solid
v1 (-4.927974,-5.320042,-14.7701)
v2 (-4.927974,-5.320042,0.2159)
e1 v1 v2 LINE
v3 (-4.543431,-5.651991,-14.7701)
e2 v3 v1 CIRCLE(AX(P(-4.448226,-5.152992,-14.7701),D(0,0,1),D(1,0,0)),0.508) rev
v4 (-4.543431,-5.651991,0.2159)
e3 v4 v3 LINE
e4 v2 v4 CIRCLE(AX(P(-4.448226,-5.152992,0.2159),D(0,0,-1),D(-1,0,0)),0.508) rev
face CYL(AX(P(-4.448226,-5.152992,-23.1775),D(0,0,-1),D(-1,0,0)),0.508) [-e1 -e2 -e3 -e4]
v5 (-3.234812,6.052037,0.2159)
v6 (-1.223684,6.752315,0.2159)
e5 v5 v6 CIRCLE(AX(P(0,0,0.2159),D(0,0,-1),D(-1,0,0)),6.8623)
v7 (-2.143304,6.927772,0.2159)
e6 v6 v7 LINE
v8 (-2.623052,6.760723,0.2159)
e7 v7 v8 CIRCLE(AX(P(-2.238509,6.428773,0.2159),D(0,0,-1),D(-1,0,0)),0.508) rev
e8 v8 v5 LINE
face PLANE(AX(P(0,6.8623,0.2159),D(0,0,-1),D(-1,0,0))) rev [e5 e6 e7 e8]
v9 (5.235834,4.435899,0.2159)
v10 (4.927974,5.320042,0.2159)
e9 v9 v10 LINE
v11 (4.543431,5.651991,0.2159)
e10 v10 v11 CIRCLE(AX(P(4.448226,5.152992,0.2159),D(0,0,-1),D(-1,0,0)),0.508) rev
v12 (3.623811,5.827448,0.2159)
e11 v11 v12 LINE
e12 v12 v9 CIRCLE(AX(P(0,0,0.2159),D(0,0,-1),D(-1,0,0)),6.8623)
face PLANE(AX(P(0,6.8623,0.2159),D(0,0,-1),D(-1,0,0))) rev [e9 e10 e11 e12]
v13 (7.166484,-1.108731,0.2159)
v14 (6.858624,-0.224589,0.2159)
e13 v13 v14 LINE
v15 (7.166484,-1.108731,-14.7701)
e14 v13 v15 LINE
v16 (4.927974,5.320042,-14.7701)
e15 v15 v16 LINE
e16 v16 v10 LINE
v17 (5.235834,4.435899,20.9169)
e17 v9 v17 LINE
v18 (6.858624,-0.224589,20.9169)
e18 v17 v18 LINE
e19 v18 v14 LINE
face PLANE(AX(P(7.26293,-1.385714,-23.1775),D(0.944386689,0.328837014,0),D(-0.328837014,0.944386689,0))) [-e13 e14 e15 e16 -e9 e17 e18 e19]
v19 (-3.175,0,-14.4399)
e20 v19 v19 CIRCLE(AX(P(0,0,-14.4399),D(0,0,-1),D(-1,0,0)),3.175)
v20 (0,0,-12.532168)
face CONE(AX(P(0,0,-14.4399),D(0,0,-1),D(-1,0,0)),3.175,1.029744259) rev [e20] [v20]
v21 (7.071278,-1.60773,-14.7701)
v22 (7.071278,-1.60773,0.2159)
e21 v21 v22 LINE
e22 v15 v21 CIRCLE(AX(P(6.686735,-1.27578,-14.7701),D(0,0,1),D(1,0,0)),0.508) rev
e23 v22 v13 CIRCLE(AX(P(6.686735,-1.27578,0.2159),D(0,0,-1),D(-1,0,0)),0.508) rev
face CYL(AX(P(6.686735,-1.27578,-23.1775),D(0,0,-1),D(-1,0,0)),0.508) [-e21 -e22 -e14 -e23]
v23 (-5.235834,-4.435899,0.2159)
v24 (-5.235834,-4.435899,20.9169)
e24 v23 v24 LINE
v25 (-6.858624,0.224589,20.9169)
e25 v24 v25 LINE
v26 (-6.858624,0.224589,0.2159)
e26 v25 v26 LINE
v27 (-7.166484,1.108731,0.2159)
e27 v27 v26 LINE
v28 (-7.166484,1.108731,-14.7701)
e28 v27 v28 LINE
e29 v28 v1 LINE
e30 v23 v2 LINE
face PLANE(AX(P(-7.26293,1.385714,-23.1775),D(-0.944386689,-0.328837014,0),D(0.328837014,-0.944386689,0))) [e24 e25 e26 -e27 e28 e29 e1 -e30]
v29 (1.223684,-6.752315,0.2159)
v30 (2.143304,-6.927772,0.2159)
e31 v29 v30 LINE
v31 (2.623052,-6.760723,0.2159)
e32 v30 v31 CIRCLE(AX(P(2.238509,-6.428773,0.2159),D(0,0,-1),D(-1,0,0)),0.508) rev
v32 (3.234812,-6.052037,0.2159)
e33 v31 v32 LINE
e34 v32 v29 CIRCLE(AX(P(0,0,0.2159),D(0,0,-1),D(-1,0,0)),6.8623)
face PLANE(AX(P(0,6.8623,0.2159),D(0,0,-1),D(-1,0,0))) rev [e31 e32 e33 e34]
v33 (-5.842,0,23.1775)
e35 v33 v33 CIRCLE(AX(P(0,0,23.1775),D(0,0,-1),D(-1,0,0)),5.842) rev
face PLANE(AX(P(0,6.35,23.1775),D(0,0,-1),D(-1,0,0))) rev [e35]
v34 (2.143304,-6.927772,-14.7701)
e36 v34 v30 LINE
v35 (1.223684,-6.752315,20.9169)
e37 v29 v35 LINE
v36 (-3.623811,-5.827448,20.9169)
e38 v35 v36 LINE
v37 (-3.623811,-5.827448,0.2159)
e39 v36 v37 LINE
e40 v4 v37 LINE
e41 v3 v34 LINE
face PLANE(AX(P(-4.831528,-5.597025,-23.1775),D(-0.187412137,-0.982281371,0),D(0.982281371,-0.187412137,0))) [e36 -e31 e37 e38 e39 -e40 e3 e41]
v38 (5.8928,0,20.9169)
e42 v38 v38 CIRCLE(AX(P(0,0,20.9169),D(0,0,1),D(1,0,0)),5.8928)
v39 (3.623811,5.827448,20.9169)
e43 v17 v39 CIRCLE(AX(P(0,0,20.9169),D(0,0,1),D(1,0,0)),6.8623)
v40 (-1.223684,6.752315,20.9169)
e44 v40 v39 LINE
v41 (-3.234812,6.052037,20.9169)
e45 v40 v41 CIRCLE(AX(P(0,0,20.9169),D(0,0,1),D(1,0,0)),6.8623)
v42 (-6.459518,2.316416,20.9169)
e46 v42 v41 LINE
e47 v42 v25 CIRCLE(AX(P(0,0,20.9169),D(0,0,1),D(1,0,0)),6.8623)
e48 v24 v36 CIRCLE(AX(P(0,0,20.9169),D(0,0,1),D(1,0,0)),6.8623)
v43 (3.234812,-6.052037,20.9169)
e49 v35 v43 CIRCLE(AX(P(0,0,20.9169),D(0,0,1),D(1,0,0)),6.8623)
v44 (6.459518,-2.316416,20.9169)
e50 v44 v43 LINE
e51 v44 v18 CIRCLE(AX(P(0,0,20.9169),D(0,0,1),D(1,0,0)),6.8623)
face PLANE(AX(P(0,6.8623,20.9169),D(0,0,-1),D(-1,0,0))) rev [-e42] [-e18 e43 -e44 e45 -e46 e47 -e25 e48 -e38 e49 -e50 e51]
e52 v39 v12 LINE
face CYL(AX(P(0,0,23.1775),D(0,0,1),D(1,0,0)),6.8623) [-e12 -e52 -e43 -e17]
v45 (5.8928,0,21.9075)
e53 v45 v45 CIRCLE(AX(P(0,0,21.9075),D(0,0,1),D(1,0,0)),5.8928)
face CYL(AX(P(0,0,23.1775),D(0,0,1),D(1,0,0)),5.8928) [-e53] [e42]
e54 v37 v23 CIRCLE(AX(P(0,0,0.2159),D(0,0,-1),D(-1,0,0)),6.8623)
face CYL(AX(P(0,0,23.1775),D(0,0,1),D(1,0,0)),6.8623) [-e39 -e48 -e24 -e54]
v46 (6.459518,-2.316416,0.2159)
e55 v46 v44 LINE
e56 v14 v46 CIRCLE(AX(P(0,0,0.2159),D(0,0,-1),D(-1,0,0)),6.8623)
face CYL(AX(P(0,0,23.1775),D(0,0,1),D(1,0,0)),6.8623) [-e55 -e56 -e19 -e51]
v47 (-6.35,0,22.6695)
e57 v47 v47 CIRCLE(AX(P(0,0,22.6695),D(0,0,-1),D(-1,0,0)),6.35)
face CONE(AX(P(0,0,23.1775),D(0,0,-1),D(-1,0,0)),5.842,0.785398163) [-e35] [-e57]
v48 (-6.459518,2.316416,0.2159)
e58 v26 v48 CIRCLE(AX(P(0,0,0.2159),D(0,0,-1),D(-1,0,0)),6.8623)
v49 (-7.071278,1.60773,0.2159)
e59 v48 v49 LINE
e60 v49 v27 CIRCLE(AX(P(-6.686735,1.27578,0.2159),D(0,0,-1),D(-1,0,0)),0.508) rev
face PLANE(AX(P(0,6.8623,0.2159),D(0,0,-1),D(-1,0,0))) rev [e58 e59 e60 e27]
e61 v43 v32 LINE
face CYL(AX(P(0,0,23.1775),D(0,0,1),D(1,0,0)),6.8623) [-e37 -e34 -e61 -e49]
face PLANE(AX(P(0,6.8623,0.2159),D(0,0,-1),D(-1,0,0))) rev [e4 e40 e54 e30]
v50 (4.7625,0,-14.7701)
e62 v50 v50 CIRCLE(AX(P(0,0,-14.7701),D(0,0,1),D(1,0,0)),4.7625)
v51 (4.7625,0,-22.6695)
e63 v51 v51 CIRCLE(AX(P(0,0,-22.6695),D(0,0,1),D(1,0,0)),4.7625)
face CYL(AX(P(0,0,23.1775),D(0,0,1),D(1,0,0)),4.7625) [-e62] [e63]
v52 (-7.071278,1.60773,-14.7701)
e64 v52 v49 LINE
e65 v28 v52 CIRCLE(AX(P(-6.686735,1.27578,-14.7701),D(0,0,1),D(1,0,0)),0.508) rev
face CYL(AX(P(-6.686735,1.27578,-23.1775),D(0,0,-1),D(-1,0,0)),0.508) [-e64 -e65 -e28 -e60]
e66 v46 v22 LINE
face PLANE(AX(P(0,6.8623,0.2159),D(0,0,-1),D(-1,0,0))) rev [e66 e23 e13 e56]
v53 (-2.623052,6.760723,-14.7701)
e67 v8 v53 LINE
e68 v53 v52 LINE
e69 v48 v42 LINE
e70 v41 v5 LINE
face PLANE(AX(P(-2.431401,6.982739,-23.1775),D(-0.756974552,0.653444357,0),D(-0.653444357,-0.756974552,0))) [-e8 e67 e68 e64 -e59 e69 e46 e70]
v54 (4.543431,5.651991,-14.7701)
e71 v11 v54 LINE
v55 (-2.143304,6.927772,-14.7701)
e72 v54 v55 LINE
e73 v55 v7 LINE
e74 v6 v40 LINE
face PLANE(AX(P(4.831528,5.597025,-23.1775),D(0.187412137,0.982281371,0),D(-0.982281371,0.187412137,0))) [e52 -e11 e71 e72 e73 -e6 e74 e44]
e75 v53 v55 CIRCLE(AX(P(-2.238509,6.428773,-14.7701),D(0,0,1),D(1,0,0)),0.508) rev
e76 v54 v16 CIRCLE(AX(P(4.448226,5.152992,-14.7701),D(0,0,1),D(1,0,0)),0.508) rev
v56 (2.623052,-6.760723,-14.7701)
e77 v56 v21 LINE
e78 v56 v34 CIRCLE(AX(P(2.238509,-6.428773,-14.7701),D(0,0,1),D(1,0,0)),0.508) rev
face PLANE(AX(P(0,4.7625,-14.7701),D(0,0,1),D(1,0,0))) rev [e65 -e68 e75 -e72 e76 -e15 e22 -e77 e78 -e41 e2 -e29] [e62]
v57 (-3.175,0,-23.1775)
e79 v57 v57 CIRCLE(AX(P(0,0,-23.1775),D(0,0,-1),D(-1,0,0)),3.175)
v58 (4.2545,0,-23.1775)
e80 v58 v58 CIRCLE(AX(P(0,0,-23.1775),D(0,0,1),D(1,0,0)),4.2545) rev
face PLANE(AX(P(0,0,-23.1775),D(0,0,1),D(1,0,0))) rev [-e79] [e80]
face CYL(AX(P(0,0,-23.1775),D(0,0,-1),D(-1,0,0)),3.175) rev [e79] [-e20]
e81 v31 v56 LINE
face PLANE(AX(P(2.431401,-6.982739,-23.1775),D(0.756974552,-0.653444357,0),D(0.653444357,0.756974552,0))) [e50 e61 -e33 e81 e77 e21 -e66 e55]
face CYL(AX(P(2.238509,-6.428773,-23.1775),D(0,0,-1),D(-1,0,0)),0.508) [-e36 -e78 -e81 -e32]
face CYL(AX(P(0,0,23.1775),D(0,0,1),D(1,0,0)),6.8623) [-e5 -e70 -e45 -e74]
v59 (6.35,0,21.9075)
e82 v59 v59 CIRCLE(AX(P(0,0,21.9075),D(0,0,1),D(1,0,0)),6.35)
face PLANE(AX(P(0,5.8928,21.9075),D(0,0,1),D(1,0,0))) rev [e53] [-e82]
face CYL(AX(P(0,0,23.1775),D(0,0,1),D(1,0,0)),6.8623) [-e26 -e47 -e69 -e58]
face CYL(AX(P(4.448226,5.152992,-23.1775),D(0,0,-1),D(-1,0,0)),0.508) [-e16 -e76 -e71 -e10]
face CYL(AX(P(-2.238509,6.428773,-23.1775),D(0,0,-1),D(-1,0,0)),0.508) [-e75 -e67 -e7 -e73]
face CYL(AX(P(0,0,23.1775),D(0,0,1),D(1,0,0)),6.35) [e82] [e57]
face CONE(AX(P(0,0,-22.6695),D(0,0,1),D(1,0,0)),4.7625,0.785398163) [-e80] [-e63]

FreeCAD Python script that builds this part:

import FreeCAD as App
import Part
import Sketcher
from FreeCAD import Vector
Q = App.Units.Quantity


def edges_at(feature, points):
    """Names of the edges that pass closest to the given points."""
    edges = feature.Shape.Edges
    near = lambda p: min(range(len(edges)), key=lambda i: edges[i].distToShape(Part.Vertex(*p))[0])
    return sorted({f"Edge{near(p) + 1}" for p in points})

doc = App.newDocument("Part")
params = doc.addObject("Spreadsheet::Sheet", "Params")
for row, (alias, value) in enumerate([
    ("sketch1_width", "0.25 in"),
    ("sketch1_height", "0.05 in"),
    ("sketch1_width2", "0.1875 in"),
    ("sketch1_width3", "0.018 in"),
    ("sketch1_height2", "1.825 in"),
    ("revolution_angle", "360 deg"),
    ("sketch3_diameter", "0.25 in"),
    ("hole_diameter", "0.25 in"),
    ("hole_depth", "0.344 in"),
    ("chamfer_size", "0.02 in"),
    ("sketch4_diameter", "0.25 in"),
    ("pad1_length", "0.59 in"),
    ("fillet_radius", "0.02 in"),
], start=1):
    params.set(f"A{row}", alias)
    params.set(f"B{row}", "=" + value)
    params.setAlias(f"B{row}", alias)

body = doc.addObject("PartDesign::Body", "Body")

# Sketch on YZ plane
sketch1 = body.newObject("Sketcher::SketchObject", "Sketch")
sketch1.AttachmentSupport = (doc.getObject("YZ_Plane"), [""])
sketch1.MapMode = "FlatFace"
sketch1.addGeometry(Part.LineSegment(Vector(0, 23.1775, 0), Vector(0, -23.1775, 0)), False)
sketch1.addGeometry(Part.LineSegment(Vector(0, -23.1775, 0), Vector(4.7625, -23.1775, 0)), False)
sketch1.addGeometry(Part.LineSegment(Vector(4.7625, -23.1775, 0), Vector(4.7625, -14.7701, 0)), False)
sketch1.addGeometry(Part.LineSegment(Vector(4.7625, -14.7701, 0), Vector(6.8623, -14.7701, 0)), False)
sketch1.addGeometry(Part.LineSegment(Vector(6.8623, -14.7701, 0), Vector(6.8623, 20.9169, 0)), False)
sketch1.addGeometry(Part.LineSegment(Vector(6.8623, 20.9169, 0), Vector(5.8928, 20.9169, 0)), False)
sketch1.addGeometry(Part.LineSegment(Vector(5.8928, 20.9169, 0), Vector(5.8928, 21.9075, 0)), False)
sketch1.addGeometry(Part.LineSegment(Vector(5.8928, 21.9075, 0), Vector(6.35, 21.9075, 0)), False)
sketch1.addGeometry(Part.LineSegment(Vector(6.35, 21.9075, 0), Vector(6.35, 23.1775, 0)), False)
sketch1.addGeometry(Part.LineSegment(Vector(6.35, 23.1775, 0), Vector(0, 23.1775, 0)), False)
sketch1.addConstraint(Sketcher.Constraint("Coincident", 0, 2, 1, 1))
sketch1.addConstraint(Sketcher.Constraint("Coincident", 1, 2, 2, 1))
sketch1.addConstraint(Sketcher.Constraint("Coincident", 2, 2, 3, 1))
sketch1.addConstraint(Sketcher.Constraint("Coincident", 3, 2, 4, 1))
sketch1.addConstraint(Sketcher.Constraint("Coincident", 4, 2, 5, 1))
sketch1.addConstraint(Sketcher.Constraint("Coincident", 5, 2, 6, 1))
sketch1.addConstraint(Sketcher.Constraint("Coincident", 6, 2, 7, 1))
sketch1.addConstraint(Sketcher.Constraint("Coincident", 7, 2, 8, 1))
sketch1.addConstraint(Sketcher.Constraint("Coincident", 8, 2, 9, 1))
sketch1.addConstraint(Sketcher.Constraint("Coincident", 9, 2, 0, 1))
sketch1.addConstraint(Sketcher.Constraint("Vertical", 0))
sketch1.addConstraint(Sketcher.Constraint("Horizontal", 1))
sketch1.addConstraint(Sketcher.Constraint("Vertical", 2))
sketch1.addConstraint(Sketcher.Constraint("Horizontal", 3))
sketch1.addConstraint(Sketcher.Constraint("Vertical", 4))
sketch1.addConstraint(Sketcher.Constraint("Horizontal", 5))
sketch1.addConstraint(Sketcher.Constraint("Vertical", 6))
sketch1.addConstraint(Sketcher.Constraint("Horizontal", 7))
sketch1.addConstraint(Sketcher.Constraint("Vertical", 8))
sketch1.addConstraint(Sketcher.Constraint("Horizontal", 9))
sketch1.addConstraint(Sketcher.Constraint("Symmetric", 0, 2, 9, 2, -1, 1))
sketch1.addConstraint(Sketcher.Constraint("DistanceX", 9, 2, 9, 1, Q("0.25 in")))
sketch1.addConstraint(Sketcher.Constraint("DistanceY", 8, 1, 8, 2, Q("0.05 in")))
sketch1.addConstraint(Sketcher.Constraint("DistanceX", 1, 1, 1, 2, Q("0.1875 in")))
sketch1.addConstraint(Sketcher.Constraint("DistanceX", 7, 1, 7, 2, Q("0.018 in")))
sketch1.addConstraint(Sketcher.Constraint("DistanceY", 0, 2, 0, 1, Q("1.825 in")))
sketch1.addConstraint(Sketcher.Constraint("DistanceY", 2, 1, 2, 2, Q("0.331 in")))
sketch1.addConstraint(Sketcher.Constraint("DistanceY", 4, 1, 4, 2, Q("1.405 in")))
sketch1.addConstraint(Sketcher.Constraint("DistanceX", 3, 1, 3, 2, Q("2.0998 mm")))
sketch1.setExpression("Constraints[21]", "Params.sketch1_width")
sketch1.setExpression("Constraints[22]", "Params.sketch1_height")
sketch1.setExpression("Constraints[23]", "Params.sketch1_width2")
sketch1.setExpression("Constraints[24]", "Params.sketch1_width3")
sketch1.setExpression("Constraints[25]", "Params.sketch1_height2")
revolution = body.newObject("PartDesign::Revolution", "Revolution")
revolution.Profile = sketch1
revolution.ReferenceAxis = (sketch1, ["V_Axis"])
revolution.setExpression("Angle", "Params.revolution_angle")

# Sketch on XY plane
sketch2 = body.newObject("Sketcher::SketchObject", "Sketch001")
sketch2.AttachmentSupport = (doc.getObject("XY_Plane"), [""])
sketch2.MapMode = "FlatFace"
sketch2.AttachmentOffset = App.Placement(Vector(0, 0, 0.9125 * 25.4), App.Rotation())
sketch2.addGeometry(Part.LineSegment(Vector(-12.887, 12.887, 0), Vector(-12.887, -12.887, 0)), False)
sketch2.addGeometry(Part.LineSegment(Vector(-12.887, -12.887, 0), Vector(12.887, -12.887, 0)), False)
sketch2.addGeometry(Part.LineSegment(Vector(12.887, -12.887, 0), Vector(12.887, 12.887, 0)), False)
sketch2.addGeometry(Part.LineSegment(Vector(12.887, 12.887, 0), Vector(-12.887, 12.887, 0)), False)
sketch2.addGeometry(Part.LineSegment(Vector(4.831528, 5.597025, 0), Vector(7.26293, -1.385714, 0)), False)
sketch2.addGeometry(Part.LineSegment(Vector(7.26293, -1.385714, 0), Vector(2.431401, -6.982739, 0)), False)
sketch2.addGeometry(Part.LineSegment(Vector(2.431401, -6.982739, 0), Vector(-4.831528, -5.597025, 0)), False)
sketch2.addGeometry(Part.LineSegment(Vector(-4.831528, -5.597025, 0), Vector(-7.26293, 1.385714, 0)), False)
sketch2.addGeometry(Part.LineSegment(Vector(-7.26293, 1.385714, 0), Vector(-2.431401, 6.982739, 0)), False)
sketch2.addGeometry(Part.LineSegment(Vector(-2.431401, 6.982739, 0), Vector(4.831528, 5.597025, 0)), False)
sketch2.addConstraint(Sketcher.Constraint("Coincident", 0, 2, 1, 1))
sketch2.addConstraint(Sketcher.Constraint("Coincident", 1, 2, 2, 1))
sketch2.addConstraint(Sketcher.Constraint("Coincident", 2, 2, 3, 1))
sketch2.addConstraint(Sketcher.Constraint("Coincident", 3, 2, 0, 1))
sketch2.addConstraint(Sketcher.Constraint("Coincident", 4, 2, 5, 1))
sketch2.addConstraint(Sketcher.Constraint("Coincident", 5, 2, 6, 1))
sketch2.addConstraint(Sketcher.Constraint("Coincident", 6, 2, 7, 1))
sketch2.addConstraint(Sketcher.Constraint("Coincident", 7, 2, 8, 1))
sketch2.addConstraint(Sketcher.Constraint("Coincident", 8, 2, 9, 1))
sketch2.addConstraint(Sketcher.Constraint("Coincident", 9, 2, 4, 1))
sketch2.addConstraint(Sketcher.Constraint("Vertical", 0))
sketch2.addConstraint(Sketcher.Constraint("Horizontal", 1))
sketch2.addConstraint(Sketcher.Constraint("Vertical", 2))
sketch2.addConstraint(Sketcher.Constraint("Horizontal", 3))
sketch2.addConstraint(Sketcher.Constraint("Symmetric", 0, 2, 2, 2, -1, 1))
sketch2.addConstraint(Sketcher.Constraint("Symmetric", 4, 2, 7, 2, -1, 1))
sketch2.addConstraint(Sketcher.Constraint("Symmetric", 5, 2, 8, 2, -1, 1))
sketch2.addConstraint(Sketcher.Constraint("Symmetric", 6, 2, 9, 2, -1, 1))
sketch2.addConstraint(Sketcher.Constraint("Equal", 3, 0))
sketch2.addConstraint(Sketcher.Constraint("Equal", 4, 5))
sketch2.addConstraint(Sketcher.Constraint("Equal", 5, 6))
sketch2.addConstraint(Sketcher.Constraint("Distance", 4, Q("0.2911 in")))
sketch2.addConstraint(Sketcher.Constraint("DistanceX", 1, 1, 1, 2, Q("25.774 mm")))
sketch2.addConstraint(Sketcher.Constraint("DistanceX", -1, 1, 5, 2, Q("2.431401 mm")))
sketch2.addConstraint(Sketcher.Constraint("DistanceX", 7, 2, 6, 2, Q("2.431401 mm")))
sketch2.addConstraint(Sketcher.Constraint("DistanceX", -1, 1, 4, 2, Q("7.26293 mm")))
pocket1 = body.newObject("PartDesign::Pocket", "Pocket")
pocket1.Profile = sketch2
pocket1.Type = "ThroughAll"

# Sketch on XY plane
sketch3 = body.newObject("Sketcher::SketchObject", "Sketch002")
sketch3.AttachmentSupport = (doc.getObject("XY_Plane"), [""])
sketch3.MapMode = "FlatFace"
sketch3.AttachmentOffset = App.Placement(Vector(0, 0, -0.9125 * 25.4), App.Rotation())
sketch3.addGeometry(Part.Circle(Vector(0, 0, 0), Vector(0, 0, 1), 3.175), False)
sketch3.addConstraint(Sketcher.Constraint("Coincident", 0, 3, -1, 1))
sketch3.addConstraint(Sketcher.Constraint("Diameter", 0, Q("0.25 in")))
sketch3.setExpression("Constraints[1]", "Params.sketch3_diameter")
doc.recompute()
hole = body.newObject("PartDesign::Hole", "Hole")
hole.Profile = sketch3
hole.ThreadType = "None"
hole.setExpression("Diameter", "Params.hole_diameter")
hole.DepthType = "Dimension"
hole.setExpression("Depth", "Params.hole_depth")
hole.DrillPoint = "Angled"
hole.DrillPointAngle = 118
hole.Reversed = True
doc.recompute()

chamfer = body.newObject("PartDesign::Chamfer", "Chamfer")
chamfer.Base = (hole, edges_at(hole, [(-4.763, 0, -23.177), (-6.35, 0, 23.177)]))
chamfer.setExpression("Size", "Params.chamfer_size")

# Sketch on XY plane
sketch4 = body.newObject("Sketcher::SketchObject", "Sketch003")
sketch4.AttachmentSupport = (doc.getObject("XY_Plane"), [""])
sketch4.MapMode = "FlatFace"
sketch4.AttachmentOffset = App.Placement(Vector(0, 0, 0.0085 * 25.4), App.Rotation())
sketch4.addGeometry(Part.LineSegment(Vector(4.831528, 5.597025, 0), Vector(7.26293, -1.385714, 0)), False)
sketch4.addGeometry(Part.LineSegment(Vector(7.26293, -1.385714, 0), Vector(2.431401, -6.982739, 0)), False)
sketch4.addGeometry(Part.LineSegment(Vector(2.431401, -6.982739, 0), Vector(-4.831528, -5.597025, 0)), False)
sketch4.addGeometry(Part.LineSegment(Vector(-4.831528, -5.597025, 0), Vector(-7.26293, 1.385714, 0)), False)
sketch4.addGeometry(Part.LineSegment(Vector(-7.26293, 1.385714, 0), Vector(-2.431401, 6.982739, 0)), False)
sketch4.addGeometry(Part.LineSegment(Vector(-2.431401, 6.982739, 0), Vector(4.831528, 5.597025, 0)), False)
sketch4.addGeometry(Part.Circle(Vector(0, 0, 0), Vector(0, 0, 1), 3.175), False)
sketch4.addConstraint(Sketcher.Constraint("Coincident", 0, 2, 1, 1))
sketch4.addConstraint(Sketcher.Constraint("Coincident", 1, 2, 2, 1))
sketch4.addConstraint(Sketcher.Constraint("Coincident", 2, 2, 3, 1))
sketch4.addConstraint(Sketcher.Constraint("Coincident", 3, 2, 4, 1))
sketch4.addConstraint(Sketcher.Constraint("Coincident", 4, 2, 5, 1))
sketch4.addConstraint(Sketcher.Constraint("Coincident", 5, 2, 0, 1))
sketch4.addConstraint(Sketcher.Constraint("Coincident", 6, 3, -1, 1))
sketch4.addConstraint(Sketcher.Constraint("Symmetric", 0, 2, 3, 2, -1, 1))
sketch4.addConstraint(Sketcher.Constraint("Symmetric", 1, 2, 4, 2, -1, 1))
sketch4.addConstraint(Sketcher.Constraint("Symmetric", 2, 2, 5, 2, -1, 1))
sketch4.addConstraint(Sketcher.Constraint("Equal", 0, 1))
sketch4.addConstraint(Sketcher.Constraint("Equal", 1, 2))
sketch4.addConstraint(Sketcher.Constraint("Diameter", 6, Q("0.25 in")))
sketch4.addConstraint(Sketcher.Constraint("Distance", 0, Q("0.2911 in")))
sketch4.addConstraint(Sketcher.Constraint("DistanceX", -1, 1, 1, 2, Q("2.431401 mm")))
sketch4.addConstraint(Sketcher.Constraint("DistanceX", 3, 2, 2, 2, Q("2.431401 mm")))
sketch4.addConstraint(Sketcher.Constraint("DistanceX", -1, 1, 0, 2, Q("7.26293 mm")))
sketch4.setExpression("Constraints[12]", "Params.sketch4_diameter")
pad1 = body.newObject("PartDesign::Pad", "Pad")
pad1.Profile = sketch4
pad1.setExpression("Length", "Params.pad1_length")
pad1.Reversed = True
doc.recompute()

fillet = body.newObject("PartDesign::Fillet", "Fillet")
fillet.Base = (pad1, edges_at(pad1, [
    (2.431, -6.983, -7.277),
    (-4.832, -5.597, -7.277),
    (-7.263, 1.386, -7.277),
    (-2.431, 6.983, -7.277),
    (7.263, -1.386, -7.277),
    (4.832, 5.597, -7.277),
]))
fillet.setExpression("Radius", "Params.fillet_radius")

doc.recompute()
